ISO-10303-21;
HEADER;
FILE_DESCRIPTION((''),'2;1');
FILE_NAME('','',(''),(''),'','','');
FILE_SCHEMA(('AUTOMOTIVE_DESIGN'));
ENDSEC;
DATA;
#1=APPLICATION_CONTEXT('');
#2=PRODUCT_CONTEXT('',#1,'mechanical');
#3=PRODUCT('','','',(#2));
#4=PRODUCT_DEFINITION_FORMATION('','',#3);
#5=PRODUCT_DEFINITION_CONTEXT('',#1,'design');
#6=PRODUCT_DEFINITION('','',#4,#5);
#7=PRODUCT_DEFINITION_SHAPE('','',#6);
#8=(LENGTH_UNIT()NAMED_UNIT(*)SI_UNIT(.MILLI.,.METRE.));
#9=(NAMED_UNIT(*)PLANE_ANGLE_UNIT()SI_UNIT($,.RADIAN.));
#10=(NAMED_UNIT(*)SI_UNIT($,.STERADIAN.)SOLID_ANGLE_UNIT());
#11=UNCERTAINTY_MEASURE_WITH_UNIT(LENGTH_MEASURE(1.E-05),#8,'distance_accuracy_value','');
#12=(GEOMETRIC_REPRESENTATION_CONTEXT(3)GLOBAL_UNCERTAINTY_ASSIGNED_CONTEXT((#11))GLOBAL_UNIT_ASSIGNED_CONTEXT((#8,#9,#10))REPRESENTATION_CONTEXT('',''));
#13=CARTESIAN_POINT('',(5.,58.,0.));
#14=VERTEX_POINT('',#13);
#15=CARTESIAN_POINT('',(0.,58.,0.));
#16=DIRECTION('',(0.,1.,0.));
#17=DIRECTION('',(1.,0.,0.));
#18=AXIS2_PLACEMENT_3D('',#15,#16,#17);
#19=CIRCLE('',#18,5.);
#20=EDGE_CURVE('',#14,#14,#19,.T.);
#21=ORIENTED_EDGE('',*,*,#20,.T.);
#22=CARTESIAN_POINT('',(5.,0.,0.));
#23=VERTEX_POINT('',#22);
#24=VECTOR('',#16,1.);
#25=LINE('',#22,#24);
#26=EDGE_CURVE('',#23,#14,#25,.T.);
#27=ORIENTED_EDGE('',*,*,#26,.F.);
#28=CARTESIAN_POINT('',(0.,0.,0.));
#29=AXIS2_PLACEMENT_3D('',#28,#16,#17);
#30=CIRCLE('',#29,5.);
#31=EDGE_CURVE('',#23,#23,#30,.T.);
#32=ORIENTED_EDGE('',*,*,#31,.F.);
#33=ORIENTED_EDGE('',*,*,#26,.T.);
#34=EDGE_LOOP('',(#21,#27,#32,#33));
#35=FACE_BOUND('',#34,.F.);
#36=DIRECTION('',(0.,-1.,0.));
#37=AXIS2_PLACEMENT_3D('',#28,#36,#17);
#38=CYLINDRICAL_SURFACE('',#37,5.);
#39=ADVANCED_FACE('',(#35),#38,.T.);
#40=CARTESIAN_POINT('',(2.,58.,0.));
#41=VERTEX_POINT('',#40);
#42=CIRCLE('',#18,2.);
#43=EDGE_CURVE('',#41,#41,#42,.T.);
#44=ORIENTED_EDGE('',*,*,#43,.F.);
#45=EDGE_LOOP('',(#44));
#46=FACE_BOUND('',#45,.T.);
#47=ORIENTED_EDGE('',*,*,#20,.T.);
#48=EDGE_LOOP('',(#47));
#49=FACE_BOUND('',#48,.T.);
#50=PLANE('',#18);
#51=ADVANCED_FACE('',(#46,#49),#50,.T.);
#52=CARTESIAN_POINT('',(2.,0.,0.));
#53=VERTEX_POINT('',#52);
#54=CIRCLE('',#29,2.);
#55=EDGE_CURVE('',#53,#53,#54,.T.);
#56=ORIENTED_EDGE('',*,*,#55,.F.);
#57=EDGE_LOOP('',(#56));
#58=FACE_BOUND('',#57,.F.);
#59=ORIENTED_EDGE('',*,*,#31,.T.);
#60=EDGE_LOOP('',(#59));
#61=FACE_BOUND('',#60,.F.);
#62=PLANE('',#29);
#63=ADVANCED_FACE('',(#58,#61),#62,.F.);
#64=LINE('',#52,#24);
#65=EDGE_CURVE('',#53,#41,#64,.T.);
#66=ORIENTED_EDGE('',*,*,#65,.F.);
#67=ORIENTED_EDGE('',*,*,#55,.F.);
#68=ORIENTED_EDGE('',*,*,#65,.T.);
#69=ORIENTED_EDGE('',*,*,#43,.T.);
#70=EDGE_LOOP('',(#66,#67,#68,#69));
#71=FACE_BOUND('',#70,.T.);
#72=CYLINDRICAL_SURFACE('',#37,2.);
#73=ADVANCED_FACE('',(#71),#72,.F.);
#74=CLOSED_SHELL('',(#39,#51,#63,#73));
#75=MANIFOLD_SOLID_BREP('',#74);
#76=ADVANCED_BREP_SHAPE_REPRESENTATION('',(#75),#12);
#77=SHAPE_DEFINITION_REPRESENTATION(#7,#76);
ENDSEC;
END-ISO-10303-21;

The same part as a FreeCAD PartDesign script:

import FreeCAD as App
import Part
import Sketcher

V = App.Vector
Q = App.Units.Quantity

doc = App.newDocument("Part")
params = doc.addObject("Spreadsheet::Sheet", "Params")
for row, (alias, value) in enumerate([
    ("sketch1_diameter", "4 mm"),
    ("sketch1_diameter2", "10 mm"),
    ("pad1_length", "58 mm"),
], start=1):
    params.set(f"A{row}", alias)
    params.set(f"B{row}", "=" + value)
    params.setAlias(f"B{row}", alias)

body = doc.addObject("PartDesign::Body", "Body")

sketch1 = body.newObject("Sketcher::SketchObject", "Sketch")
sketch1.AttachmentSupport = (doc.getObject("XZ_Plane"), [""])
sketch1.MapMode = "FlatFace"
sketch1.addGeometry([
    Part.Circle(V(0, 0, 0), V(0, 0, 1), 5),
    Part.Circle(V(0, 0, 0), V(0, 0, 1), 2),
], False)
sketch1.addConstraint([
    Sketcher.Constraint("Coincident", 0, 3, -1, 1),
    Sketcher.Constraint("Coincident", 1, 3, -1, 1),
    Sketcher.Constraint("Diameter", 1, Q("4 mm")),
    Sketcher.Constraint("Diameter", 0, Q("10 mm")),
])
sketch1.setExpression("Constraints[2]", "Params.sketch1_diameter")
sketch1.setExpression("Constraints[3]", "Params.sketch1_diameter2")
pad1 = body.newObject("PartDesign::Pad", "Pad")
pad1.Profile = sketch1
pad1.setExpression("Length", "Params.pad1_length")
pad1.Reversed = True

doc.recompute()
